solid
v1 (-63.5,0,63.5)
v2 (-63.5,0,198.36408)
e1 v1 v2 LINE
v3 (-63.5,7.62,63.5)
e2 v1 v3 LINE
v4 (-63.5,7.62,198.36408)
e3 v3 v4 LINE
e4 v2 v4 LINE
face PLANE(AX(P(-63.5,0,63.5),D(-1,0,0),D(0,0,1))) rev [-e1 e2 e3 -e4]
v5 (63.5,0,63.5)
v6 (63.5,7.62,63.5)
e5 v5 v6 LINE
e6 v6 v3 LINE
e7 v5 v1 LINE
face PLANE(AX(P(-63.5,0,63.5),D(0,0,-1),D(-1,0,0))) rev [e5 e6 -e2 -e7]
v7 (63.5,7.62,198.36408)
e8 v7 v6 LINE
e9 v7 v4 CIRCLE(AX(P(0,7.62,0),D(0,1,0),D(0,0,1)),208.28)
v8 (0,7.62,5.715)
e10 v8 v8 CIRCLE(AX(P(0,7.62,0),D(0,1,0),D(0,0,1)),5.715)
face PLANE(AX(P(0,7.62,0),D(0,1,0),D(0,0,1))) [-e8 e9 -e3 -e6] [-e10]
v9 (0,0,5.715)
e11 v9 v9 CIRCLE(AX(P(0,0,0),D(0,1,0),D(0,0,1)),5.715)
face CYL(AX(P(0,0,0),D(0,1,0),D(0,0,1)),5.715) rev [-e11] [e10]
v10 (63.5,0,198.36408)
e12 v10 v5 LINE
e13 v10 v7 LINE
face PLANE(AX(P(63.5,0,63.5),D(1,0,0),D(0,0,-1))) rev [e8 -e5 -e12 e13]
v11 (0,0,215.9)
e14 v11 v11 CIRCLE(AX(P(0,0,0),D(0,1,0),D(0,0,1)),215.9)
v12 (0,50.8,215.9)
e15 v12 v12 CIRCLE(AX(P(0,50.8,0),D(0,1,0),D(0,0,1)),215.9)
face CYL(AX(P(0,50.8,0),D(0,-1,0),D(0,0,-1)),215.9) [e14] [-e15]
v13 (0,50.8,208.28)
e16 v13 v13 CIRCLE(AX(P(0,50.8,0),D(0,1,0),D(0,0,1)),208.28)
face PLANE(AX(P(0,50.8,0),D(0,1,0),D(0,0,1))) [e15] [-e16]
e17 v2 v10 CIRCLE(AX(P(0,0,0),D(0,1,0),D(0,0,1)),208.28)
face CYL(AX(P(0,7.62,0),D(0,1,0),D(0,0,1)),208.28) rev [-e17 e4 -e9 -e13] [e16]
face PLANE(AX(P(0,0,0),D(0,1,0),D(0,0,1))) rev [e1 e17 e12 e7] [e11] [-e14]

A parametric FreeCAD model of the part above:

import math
import FreeCAD as App
import Part
import Sketcher
from FreeCAD import Vector
Q = App.Units.Quantity

doc = App.newDocument("Part")
params = doc.addObject("Spreadsheet::Sheet", "Params")
for row, (alias, value) in enumerate([
    ("sketch1_diameter", "17 in"),
    ("pad1_length", "2 in"),
    ("sketch2_diameter", "16.4 in"),
    ("pocket1_length", "1.7 in"),
    ("sketch3_radius", "8.2 in"),
    ("sketch3_width", "5 in"),
    ("sketch4_diameter", "0.45 in"),
], start=1):
    params.set(f"A{row}", alias)
    params.set(f"B{row}", "=" + value)
    params.setAlias(f"B{row}", alias)

body = doc.addObject("PartDesign::Body", "Body")

sketch1 = body.newObject("Sketcher::SketchObject", "Sketch")
sketch1.AttachmentSupport = (doc.getObject("XZ_Plane"), [""])
sketch1.MapMode = "FlatFace"
sketch1.addGeometry(Part.Circle(Vector(0, 0, 0), Vector(0, 0, 1), 216), False)
sketch1.addConstraint(Sketcher.Constraint("Coincident", 0, 3, -1, 1))
sketch1.addConstraint(Sketcher.Constraint("Diameter", 0, Q("17 in")))
sketch1.setExpression("Constraints[1]", "Params.sketch1_diameter")
pad1 = body.newObject("PartDesign::Pad", "Pad")
pad1.Profile = sketch1
pad1.setExpression("Length", "Params.pad1_length")
pad1.Reversed = True

sketch2 = body.newObject("Sketcher::SketchObject", "Sketch001")
sketch2.AttachmentSupport = (doc.getObject("XZ_Plane"), [""])
sketch2.MapMode = "FlatFace"
sketch2.AttachmentOffset = App.Placement(Vector(0, 0, -2 * 25.4), App.Rotation())
sketch2.addGeometry(Part.Circle(Vector(0, 0, 0), Vector(0, 0, 1), 208), False)
sketch2.addConstraint(Sketcher.Constraint("Coincident", 0, 3, -1, 1))
sketch2.addConstraint(Sketcher.Constraint("Diameter", 0, Q("16.4 in")))
sketch2.setExpression("Constraints[1]", "Params.sketch2_diameter")
pocket1 = body.newObject("PartDesign::Pocket", "Pocket")
pocket1.Profile = sketch2
pocket1.setExpression("Length", "Params.pocket1_length")
pocket1.Reversed = True

sketch3 = body.newObject("Sketcher::SketchObject", "Sketch002")
sketch3.AttachmentSupport = (doc.getObject("XZ_Plane"), [""])
sketch3.MapMode = "FlatFace"
sketch3.AttachmentOffset = App.Placement(Vector(0, 0, -0.3 * 25.4), App.Rotation())
sketch3.addGeometry(Part.LineSegment(Vector(64, 64, 0), Vector(-64, 64, 0)), False)
sketch3.addGeometry(Part.LineSegment(Vector(-64, 64, 0), Vector(-64, 198, 0)), False)
sketch3.addGeometry(Part.ArcOfCircle(Part.Circle(Vector(0, 0, 0), Vector(0, 0, 1), 208), math.radians(72), math.radians(108)), False)
sketch3.addGeometry(Part.LineSegment(Vector(64, 198, 0), Vector(64, 64, 0)), False)
sketch3.addConstraint(Sketcher.Constraint("Coincident", 0, 2, 1, 1))
sketch3.addConstraint(Sketcher.Constraint("Coincident", 1, 2, 2, 2))
sketch3.addConstraint(Sketcher.Constraint("Coincident", 2, 1, 3, 1))
sketch3.addConstraint(Sketcher.Constraint("Coincident", 3, 2, 0, 1))
sketch3.addConstraint(Sketcher.Constraint("Horizontal", 0))
sketch3.addConstraint(Sketcher.Constraint("Vertical", 1))
sketch3.addConstraint(Sketcher.Constraint("Vertical", 3))
sketch3.addConstraint(Sketcher.Constraint("Coincident", 2, 3, -1, 1))
sketch3.addConstraint(Sketcher.Constraint("Horizontal", 1, 2, 2, 1))
sketch3.addConstraint(Sketcher.Constraint("Radius", 2, Q("8.2 in")))
sketch3.addConstraint(Sketcher.Constraint("DistanceX", 0, 2, 0, 1, Q("5 in")))
sketch3.addConstraint(Sketcher.Constraint("DistanceY", -1, 1, 0, 2, Q("2.5 in")))
sketch3.setExpression("Constraints[9]", "Params.sketch3_radius")
sketch3.setExpression("Constraints[10]", "Params.sketch3_width")
pocket2 = body.newObject("PartDesign::Pocket", "Pocket001")
pocket2.Profile = sketch3
pocket2.Type = "ThroughAll"
pocket2.Reversed = True

sketch4 = body.newObject("Sketcher::SketchObject", "Sketch003")
sketch4.AttachmentSupport = (doc.getObject("XZ_Plane"), [""])
sketch4.MapMode = "FlatFace"
sketch4.AttachmentOffset = App.Placement(Vector(0, 0, -0.3 * 25.4), App.Rotation())
sketch4.addGeometry(Part.Circle(Vector(0, 0, 0), Vector(0, 0, 1), 6), False)
sketch4.addConstraint(Sketcher.Constraint("Coincident", 0, 3, -1, 1))
sketch4.addConstraint(Sketcher.Constraint("Diameter", 0, Q("0.45 in")))
sketch4.setExpression("Constraints[1]", "Params.sketch4_diameter")
pocket3 = body.newObject("PartDesign::Pocket", "Pocket002")
pocket3.Profile = sketch4
pocket3.Type = "ThroughAll"
pocket3.Reversed = True

doc.recompute()
